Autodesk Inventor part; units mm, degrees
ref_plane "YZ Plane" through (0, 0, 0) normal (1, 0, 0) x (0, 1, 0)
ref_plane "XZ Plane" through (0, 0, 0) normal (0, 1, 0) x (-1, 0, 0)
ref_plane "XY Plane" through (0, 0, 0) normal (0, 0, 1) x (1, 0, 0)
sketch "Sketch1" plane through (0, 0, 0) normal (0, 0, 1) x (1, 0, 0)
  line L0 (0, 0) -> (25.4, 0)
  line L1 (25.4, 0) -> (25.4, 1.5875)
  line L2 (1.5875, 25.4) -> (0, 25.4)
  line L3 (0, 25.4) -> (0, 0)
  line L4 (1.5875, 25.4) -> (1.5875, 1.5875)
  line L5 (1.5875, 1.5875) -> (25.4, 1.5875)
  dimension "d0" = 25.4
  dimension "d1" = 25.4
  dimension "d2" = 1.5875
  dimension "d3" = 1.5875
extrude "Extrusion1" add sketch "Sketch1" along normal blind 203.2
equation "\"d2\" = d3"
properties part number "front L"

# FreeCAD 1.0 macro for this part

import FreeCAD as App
import Part
import Sketcher
Q = App.Units.Quantity

doc = App.newDocument("Part")
body = doc.addObject("PartDesign::Body", "Body")

sketch1 = body.newObject("Sketcher::SketchObject", "Sketch")
sketch1.AttachmentSupport = (doc.getObject("XY_Plane"), [""])
sketch1.MapMode = "FlatFace"
sketch1.addGeometry(Part.LineSegment(App.Vector(0, 25.4, 0), App.Vector(0, 0, 0)), False)
sketch1.addGeometry(Part.LineSegment(App.Vector(0, 0, 0), App.Vector(25.4, 0, 0)), False)
sketch1.addGeometry(Part.LineSegment(App.Vector(25.4, 0, 0), App.Vector(25.4, 1.5875, 0)), False)
sketch1.addGeometry(Part.LineSegment(App.Vector(25.4, 1.5875, 0), App.Vector(1.5875, 1.5875, 0)), False)
sketch1.addGeometry(Part.LineSegment(App.Vector(1.5875, 1.5875, 0), App.Vector(1.5875, 25.4, 0)), False)
sketch1.addGeometry(Part.LineSegment(App.Vector(1.5875, 25.4, 0), App.Vector(0, 25.4, 0)), False)
sketch1.addConstraint(Sketcher.Constraint("Coincident", 0, 2, 1, 1))
sketch1.addConstraint(Sketcher.Constraint("Coincident", 1, 2, 2, 1))
sketch1.addConstraint(Sketcher.Constraint("Coincident", 2, 2, 3, 1))
sketch1.addConstraint(Sketcher.Constraint("Coincident", 3, 2, 4, 1))
sketch1.addConstraint(Sketcher.Constraint("Coincident", 4, 2, 5, 1))
sketch1.addConstraint(Sketcher.Constraint("Coincident", 5, 2, 0, 1))
sketch1.addConstraint(Sketcher.Constraint("Vertical", 0))
sketch1.addConstraint(Sketcher.Constraint("Horizontal", 1))
sketch1.addConstraint(Sketcher.Constraint("Vertical", 2))
sketch1.addConstraint(Sketcher.Constraint("Horizontal", 3))
sketch1.addConstraint(Sketcher.Constraint("Vertical", 4))
sketch1.addConstraint(Sketcher.Constraint("Horizontal", 5))
sketch1.addConstraint(Sketcher.Constraint("Coincident", 0, 2, -1, 1))
sketch1.addConstraint(Sketcher.Constraint("Equal", 1, 0))
sketch1.addConstraint(Sketcher.Constraint("Equal", 5, 2))
sketch1.addConstraint(Sketcher.Constraint("DistanceX", 1, 1, 1, 2, Q("1 in")))
sketch1.addConstraint(Sketcher.Constraint("DistanceX", 5, 2, 5, 1, Q("0.0625 in")))
pad1 = body.newObject("PartDesign::Pad", "Pad")
pad1.Profile = sketch1
pad1.Length = Q("8 in")

doc.recompute()
